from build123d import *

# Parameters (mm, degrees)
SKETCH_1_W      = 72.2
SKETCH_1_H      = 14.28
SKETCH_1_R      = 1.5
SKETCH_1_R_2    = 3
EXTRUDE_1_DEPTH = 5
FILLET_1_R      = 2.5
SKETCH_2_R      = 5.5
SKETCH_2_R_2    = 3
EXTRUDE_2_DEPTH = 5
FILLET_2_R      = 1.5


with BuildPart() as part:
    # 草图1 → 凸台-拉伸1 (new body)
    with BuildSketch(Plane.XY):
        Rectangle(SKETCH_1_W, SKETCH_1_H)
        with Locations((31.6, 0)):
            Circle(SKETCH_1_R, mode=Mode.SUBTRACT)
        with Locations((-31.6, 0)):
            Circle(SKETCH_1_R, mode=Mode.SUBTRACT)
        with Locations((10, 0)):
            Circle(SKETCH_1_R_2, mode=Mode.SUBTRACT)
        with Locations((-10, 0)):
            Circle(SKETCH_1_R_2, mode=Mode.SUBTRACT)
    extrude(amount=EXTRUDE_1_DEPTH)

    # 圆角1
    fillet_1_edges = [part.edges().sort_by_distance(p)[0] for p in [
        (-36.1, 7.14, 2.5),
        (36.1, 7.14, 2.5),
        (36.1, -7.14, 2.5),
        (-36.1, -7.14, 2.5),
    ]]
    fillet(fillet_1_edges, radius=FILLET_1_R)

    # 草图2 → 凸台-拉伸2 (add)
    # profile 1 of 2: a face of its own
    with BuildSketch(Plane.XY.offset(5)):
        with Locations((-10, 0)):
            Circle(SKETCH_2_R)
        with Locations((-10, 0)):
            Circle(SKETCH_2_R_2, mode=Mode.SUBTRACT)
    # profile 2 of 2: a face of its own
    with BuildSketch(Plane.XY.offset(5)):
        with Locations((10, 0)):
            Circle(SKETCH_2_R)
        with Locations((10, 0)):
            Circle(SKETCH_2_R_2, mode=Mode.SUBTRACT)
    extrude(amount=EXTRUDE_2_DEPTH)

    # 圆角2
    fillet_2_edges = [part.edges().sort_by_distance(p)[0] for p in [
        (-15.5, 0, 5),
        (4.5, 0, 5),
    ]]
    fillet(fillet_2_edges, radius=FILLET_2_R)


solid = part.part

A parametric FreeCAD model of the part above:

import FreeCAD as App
import Part
import Sketcher

V = App.Vector
Q = App.Units.Quantity


def edges_at(feature, points):
    """Names of the edges that pass closest to the given points."""
    edges = feature.Shape.Edges
    near = lambda p: min(range(len(edges)), key=lambda i: edges[i].distToShape(Part.Vertex(*p))[0])
    return sorted({f"Edge{near(p) + 1}" for p in points})

doc = App.newDocument("Part")
params = doc.addObject("Spreadsheet::Sheet", "Params")
for row, (alias, value) in enumerate([
    ("sketch1_diameter", "3 mm"),
    ("sketch1_diameter2", "6 mm"),
    ("sketch1_width", "72.2 mm"),
    ("sketch1_height", "14.28 mm"),
    ("pad1_length", "5 mm"),
    ("fillet_radius", "2.5 mm"),
    ("sketch2_diameter", "11 mm"),
    ("sketch2_diameter2", "6 mm"),
    ("pad2_length", "5 mm"),
    ("fillet2_radius", "1.5 mm"),
], start=1):
    params.set(f"A{row}", alias)
    params.set(f"B{row}", "=" + value)
    params.setAlias(f"B{row}", alias)

body = doc.addObject("PartDesign::Body", "Body")

sketch1 = body.newObject("Sketcher::SketchObject", "Sketch")
sketch1.AttachmentSupport = (doc.getObject("XY_Plane"), [""])
sketch1.MapMode = "FlatFace"
sketch1.addGeometry(Part.LineSegment(V(-36.1, 7.14, 0), V(-36.1, -7.14, 0)), False)
sketch1.addGeometry(Part.LineSegment(V(-36.1, -7.14, 0), V(36.1, -7.14, 0)), False)
sketch1.addGeometry(Part.LineSegment(V(36.1, -7.14, 0), V(36.1, 7.14, 0)), False)
sketch1.addGeometry(Part.LineSegment(V(36.1, 7.14, 0), V(-36.1, 7.14, 0)), False)
sketch1.addGeometry(Part.Circle(V(-31.6, 0, 0), V(0, 0, 1), 1.5), False)
sketch1.addGeometry(Part.Circle(V(-10, 0, 0), V(0, 0, 1), 3), False)
sketch1.addGeometry(Part.Circle(V(10, 0, 0), V(0, 0, 1), 3), False)
sketch1.addGeometry(Part.Circle(V(31.6, 0, 0), V(0, 0, 1), 1.5), False)
sketch1.addConstraint(Sketcher.Constraint("Coincident", 0, 2, 1, 1))
sketch1.addConstraint(Sketcher.Constraint("Coincident", 1, 2, 2, 1))
sketch1.addConstraint(Sketcher.Constraint("Coincident", 2, 2, 3, 1))
sketch1.addConstraint(Sketcher.Constraint("Coincident", 3, 2, 0, 1))
sketch1.addConstraint(Sketcher.Constraint("Vertical", 0))
sketch1.addConstraint(Sketcher.Constraint("Horizontal", 1))
sketch1.addConstraint(Sketcher.Constraint("Vertical", 2))
sketch1.addConstraint(Sketcher.Constraint("Horizontal", 3))
sketch1.addConstraint(Sketcher.Constraint("Equal", 5, 6))
sketch1.addConstraint(Sketcher.Constraint("Equal", 4, 7))
sketch1.addConstraint(Sketcher.Constraint("Symmetric", 5, 3, 6, 3, -1, 1))
sketch1.addConstraint(Sketcher.Constraint("Symmetric", 4, 3, 7, 3, -1, 1))
sketch1.addConstraint(Sketcher.Constraint("Symmetric", 0, 2, 2, 2, -1, 1))
sketch1.addConstraint(Sketcher.Constraint("PointOnObject", 4, 3, -1))
sketch1.addConstraint(Sketcher.Constraint("PointOnObject", 5, 3, -1))
sketch1.addConstraint(Sketcher.Constraint("Diameter", 4, Q("3 mm")))
sketch1.addConstraint(Sketcher.Constraint("Diameter", 5, Q("6 mm")))
sketch1.addConstraint(Sketcher.Constraint("DistanceX", 1, 1, 1, 2, Q("72.2 mm")))
sketch1.addConstraint(Sketcher.Constraint("DistanceX", 5, 3, -1, 1, Q("10 mm")))
sketch1.addConstraint(Sketcher.Constraint("DistanceY", 0, 2, 0, 1, Q("14.28 mm")))
sketch1.addConstraint(Sketcher.Constraint("DistanceX", 4, 3, -1, 1, Q("31.6 mm")))
sketch1.setExpression("Constraints[15]", "Params.sketch1_diameter")
sketch1.setExpression("Constraints[16]", "Params.sketch1_diameter2")
sketch1.setExpression("Constraints[17]", "Params.sketch1_width")
sketch1.setExpression("Constraints[19]", "Params.sketch1_height")
pad1 = body.newObject("PartDesign::Pad", "Pad")
pad1.Profile = sketch1
pad1.setExpression("Length", "Params.pad1_length")
doc.recompute()

fillet = body.newObject("PartDesign::Fillet", "Fillet")
fillet.Base = (pad1, edges_at(pad1, [
    (-36.1, 7.14, 2.5),
    (36.1, 7.14, 2.5),
    (36.1, -7.14, 2.5),
    (-36.1, -7.14, 2.5),
]))
fillet.setExpression("Radius", "Params.fillet_radius")

sketch2 = body.newObject("Sketcher::SketchObject", "Sketch001")
sketch2.AttachmentSupport = (doc.getObject("XY_Plane"), [""])
sketch2.MapMode = "FlatFace"
sketch2.AttachmentOffset = App.Placement(V(0, 0, 5), App.Rotation())
sketch2.addGeometry(Part.Circle(V(-10, 0, 0), V(0, 0, 1), 5.5), False)
sketch2.addGeometry(Part.Circle(V(-10, 0, 0), V(0, 0, 1), 3), False)
sketch2.addGeometry(Part.Circle(V(10, 0, 0), V(0, 0, 1), 5.5), False)
sketch2.addGeometry(Part.Circle(V(10, 0, 0), V(0, 0, 1), 3), False)
sketch2.addConstraint(Sketcher.Constraint("Coincident", 1, 3, 0, 3))
sketch2.addConstraint(Sketcher.Constraint("Coincident", 3, 3, 2, 3))
sketch2.addConstraint(Sketcher.Constraint("Equal", 0, 2))
sketch2.addConstraint(Sketcher.Constraint("Equal", 1, 3))
sketch2.addConstraint(Sketcher.Constraint("Symmetric", 0, 3, 2, 3, -1, 1))
sketch2.addConstraint(Sketcher.Constraint("PointOnObject", 0, 3, -1))
sketch2.addConstraint(Sketcher.Constraint("Diameter", 0, Q("11 mm")))
sketch2.addConstraint(Sketcher.Constraint("Diameter", 1, Q("6 mm")))
sketch2.addConstraint(Sketcher.Constraint("DistanceX", 0, 3, -1, 1, Q("10 mm")))
sketch2.setExpression("Constraints[6]", "Params.sketch2_diameter")
sketch2.setExpression("Constraints[7]", "Params.sketch2_diameter2")
pad2 = body.newObject("PartDesign::Pad", "Pad001")
pad2.Profile = sketch2
pad2.setExpression("Length", "Params.pad2_length")
doc.recompute()

fillet2 = body.newObject("PartDesign::Fillet", "Fillet001")
fillet2.Base = (pad2, edges_at(pad2, [(-15.5, 0, 5), (4.5, 0, 5)]))
fillet2.setExpression("Radius", "Params.fillet2_radius")

doc.recompute()
